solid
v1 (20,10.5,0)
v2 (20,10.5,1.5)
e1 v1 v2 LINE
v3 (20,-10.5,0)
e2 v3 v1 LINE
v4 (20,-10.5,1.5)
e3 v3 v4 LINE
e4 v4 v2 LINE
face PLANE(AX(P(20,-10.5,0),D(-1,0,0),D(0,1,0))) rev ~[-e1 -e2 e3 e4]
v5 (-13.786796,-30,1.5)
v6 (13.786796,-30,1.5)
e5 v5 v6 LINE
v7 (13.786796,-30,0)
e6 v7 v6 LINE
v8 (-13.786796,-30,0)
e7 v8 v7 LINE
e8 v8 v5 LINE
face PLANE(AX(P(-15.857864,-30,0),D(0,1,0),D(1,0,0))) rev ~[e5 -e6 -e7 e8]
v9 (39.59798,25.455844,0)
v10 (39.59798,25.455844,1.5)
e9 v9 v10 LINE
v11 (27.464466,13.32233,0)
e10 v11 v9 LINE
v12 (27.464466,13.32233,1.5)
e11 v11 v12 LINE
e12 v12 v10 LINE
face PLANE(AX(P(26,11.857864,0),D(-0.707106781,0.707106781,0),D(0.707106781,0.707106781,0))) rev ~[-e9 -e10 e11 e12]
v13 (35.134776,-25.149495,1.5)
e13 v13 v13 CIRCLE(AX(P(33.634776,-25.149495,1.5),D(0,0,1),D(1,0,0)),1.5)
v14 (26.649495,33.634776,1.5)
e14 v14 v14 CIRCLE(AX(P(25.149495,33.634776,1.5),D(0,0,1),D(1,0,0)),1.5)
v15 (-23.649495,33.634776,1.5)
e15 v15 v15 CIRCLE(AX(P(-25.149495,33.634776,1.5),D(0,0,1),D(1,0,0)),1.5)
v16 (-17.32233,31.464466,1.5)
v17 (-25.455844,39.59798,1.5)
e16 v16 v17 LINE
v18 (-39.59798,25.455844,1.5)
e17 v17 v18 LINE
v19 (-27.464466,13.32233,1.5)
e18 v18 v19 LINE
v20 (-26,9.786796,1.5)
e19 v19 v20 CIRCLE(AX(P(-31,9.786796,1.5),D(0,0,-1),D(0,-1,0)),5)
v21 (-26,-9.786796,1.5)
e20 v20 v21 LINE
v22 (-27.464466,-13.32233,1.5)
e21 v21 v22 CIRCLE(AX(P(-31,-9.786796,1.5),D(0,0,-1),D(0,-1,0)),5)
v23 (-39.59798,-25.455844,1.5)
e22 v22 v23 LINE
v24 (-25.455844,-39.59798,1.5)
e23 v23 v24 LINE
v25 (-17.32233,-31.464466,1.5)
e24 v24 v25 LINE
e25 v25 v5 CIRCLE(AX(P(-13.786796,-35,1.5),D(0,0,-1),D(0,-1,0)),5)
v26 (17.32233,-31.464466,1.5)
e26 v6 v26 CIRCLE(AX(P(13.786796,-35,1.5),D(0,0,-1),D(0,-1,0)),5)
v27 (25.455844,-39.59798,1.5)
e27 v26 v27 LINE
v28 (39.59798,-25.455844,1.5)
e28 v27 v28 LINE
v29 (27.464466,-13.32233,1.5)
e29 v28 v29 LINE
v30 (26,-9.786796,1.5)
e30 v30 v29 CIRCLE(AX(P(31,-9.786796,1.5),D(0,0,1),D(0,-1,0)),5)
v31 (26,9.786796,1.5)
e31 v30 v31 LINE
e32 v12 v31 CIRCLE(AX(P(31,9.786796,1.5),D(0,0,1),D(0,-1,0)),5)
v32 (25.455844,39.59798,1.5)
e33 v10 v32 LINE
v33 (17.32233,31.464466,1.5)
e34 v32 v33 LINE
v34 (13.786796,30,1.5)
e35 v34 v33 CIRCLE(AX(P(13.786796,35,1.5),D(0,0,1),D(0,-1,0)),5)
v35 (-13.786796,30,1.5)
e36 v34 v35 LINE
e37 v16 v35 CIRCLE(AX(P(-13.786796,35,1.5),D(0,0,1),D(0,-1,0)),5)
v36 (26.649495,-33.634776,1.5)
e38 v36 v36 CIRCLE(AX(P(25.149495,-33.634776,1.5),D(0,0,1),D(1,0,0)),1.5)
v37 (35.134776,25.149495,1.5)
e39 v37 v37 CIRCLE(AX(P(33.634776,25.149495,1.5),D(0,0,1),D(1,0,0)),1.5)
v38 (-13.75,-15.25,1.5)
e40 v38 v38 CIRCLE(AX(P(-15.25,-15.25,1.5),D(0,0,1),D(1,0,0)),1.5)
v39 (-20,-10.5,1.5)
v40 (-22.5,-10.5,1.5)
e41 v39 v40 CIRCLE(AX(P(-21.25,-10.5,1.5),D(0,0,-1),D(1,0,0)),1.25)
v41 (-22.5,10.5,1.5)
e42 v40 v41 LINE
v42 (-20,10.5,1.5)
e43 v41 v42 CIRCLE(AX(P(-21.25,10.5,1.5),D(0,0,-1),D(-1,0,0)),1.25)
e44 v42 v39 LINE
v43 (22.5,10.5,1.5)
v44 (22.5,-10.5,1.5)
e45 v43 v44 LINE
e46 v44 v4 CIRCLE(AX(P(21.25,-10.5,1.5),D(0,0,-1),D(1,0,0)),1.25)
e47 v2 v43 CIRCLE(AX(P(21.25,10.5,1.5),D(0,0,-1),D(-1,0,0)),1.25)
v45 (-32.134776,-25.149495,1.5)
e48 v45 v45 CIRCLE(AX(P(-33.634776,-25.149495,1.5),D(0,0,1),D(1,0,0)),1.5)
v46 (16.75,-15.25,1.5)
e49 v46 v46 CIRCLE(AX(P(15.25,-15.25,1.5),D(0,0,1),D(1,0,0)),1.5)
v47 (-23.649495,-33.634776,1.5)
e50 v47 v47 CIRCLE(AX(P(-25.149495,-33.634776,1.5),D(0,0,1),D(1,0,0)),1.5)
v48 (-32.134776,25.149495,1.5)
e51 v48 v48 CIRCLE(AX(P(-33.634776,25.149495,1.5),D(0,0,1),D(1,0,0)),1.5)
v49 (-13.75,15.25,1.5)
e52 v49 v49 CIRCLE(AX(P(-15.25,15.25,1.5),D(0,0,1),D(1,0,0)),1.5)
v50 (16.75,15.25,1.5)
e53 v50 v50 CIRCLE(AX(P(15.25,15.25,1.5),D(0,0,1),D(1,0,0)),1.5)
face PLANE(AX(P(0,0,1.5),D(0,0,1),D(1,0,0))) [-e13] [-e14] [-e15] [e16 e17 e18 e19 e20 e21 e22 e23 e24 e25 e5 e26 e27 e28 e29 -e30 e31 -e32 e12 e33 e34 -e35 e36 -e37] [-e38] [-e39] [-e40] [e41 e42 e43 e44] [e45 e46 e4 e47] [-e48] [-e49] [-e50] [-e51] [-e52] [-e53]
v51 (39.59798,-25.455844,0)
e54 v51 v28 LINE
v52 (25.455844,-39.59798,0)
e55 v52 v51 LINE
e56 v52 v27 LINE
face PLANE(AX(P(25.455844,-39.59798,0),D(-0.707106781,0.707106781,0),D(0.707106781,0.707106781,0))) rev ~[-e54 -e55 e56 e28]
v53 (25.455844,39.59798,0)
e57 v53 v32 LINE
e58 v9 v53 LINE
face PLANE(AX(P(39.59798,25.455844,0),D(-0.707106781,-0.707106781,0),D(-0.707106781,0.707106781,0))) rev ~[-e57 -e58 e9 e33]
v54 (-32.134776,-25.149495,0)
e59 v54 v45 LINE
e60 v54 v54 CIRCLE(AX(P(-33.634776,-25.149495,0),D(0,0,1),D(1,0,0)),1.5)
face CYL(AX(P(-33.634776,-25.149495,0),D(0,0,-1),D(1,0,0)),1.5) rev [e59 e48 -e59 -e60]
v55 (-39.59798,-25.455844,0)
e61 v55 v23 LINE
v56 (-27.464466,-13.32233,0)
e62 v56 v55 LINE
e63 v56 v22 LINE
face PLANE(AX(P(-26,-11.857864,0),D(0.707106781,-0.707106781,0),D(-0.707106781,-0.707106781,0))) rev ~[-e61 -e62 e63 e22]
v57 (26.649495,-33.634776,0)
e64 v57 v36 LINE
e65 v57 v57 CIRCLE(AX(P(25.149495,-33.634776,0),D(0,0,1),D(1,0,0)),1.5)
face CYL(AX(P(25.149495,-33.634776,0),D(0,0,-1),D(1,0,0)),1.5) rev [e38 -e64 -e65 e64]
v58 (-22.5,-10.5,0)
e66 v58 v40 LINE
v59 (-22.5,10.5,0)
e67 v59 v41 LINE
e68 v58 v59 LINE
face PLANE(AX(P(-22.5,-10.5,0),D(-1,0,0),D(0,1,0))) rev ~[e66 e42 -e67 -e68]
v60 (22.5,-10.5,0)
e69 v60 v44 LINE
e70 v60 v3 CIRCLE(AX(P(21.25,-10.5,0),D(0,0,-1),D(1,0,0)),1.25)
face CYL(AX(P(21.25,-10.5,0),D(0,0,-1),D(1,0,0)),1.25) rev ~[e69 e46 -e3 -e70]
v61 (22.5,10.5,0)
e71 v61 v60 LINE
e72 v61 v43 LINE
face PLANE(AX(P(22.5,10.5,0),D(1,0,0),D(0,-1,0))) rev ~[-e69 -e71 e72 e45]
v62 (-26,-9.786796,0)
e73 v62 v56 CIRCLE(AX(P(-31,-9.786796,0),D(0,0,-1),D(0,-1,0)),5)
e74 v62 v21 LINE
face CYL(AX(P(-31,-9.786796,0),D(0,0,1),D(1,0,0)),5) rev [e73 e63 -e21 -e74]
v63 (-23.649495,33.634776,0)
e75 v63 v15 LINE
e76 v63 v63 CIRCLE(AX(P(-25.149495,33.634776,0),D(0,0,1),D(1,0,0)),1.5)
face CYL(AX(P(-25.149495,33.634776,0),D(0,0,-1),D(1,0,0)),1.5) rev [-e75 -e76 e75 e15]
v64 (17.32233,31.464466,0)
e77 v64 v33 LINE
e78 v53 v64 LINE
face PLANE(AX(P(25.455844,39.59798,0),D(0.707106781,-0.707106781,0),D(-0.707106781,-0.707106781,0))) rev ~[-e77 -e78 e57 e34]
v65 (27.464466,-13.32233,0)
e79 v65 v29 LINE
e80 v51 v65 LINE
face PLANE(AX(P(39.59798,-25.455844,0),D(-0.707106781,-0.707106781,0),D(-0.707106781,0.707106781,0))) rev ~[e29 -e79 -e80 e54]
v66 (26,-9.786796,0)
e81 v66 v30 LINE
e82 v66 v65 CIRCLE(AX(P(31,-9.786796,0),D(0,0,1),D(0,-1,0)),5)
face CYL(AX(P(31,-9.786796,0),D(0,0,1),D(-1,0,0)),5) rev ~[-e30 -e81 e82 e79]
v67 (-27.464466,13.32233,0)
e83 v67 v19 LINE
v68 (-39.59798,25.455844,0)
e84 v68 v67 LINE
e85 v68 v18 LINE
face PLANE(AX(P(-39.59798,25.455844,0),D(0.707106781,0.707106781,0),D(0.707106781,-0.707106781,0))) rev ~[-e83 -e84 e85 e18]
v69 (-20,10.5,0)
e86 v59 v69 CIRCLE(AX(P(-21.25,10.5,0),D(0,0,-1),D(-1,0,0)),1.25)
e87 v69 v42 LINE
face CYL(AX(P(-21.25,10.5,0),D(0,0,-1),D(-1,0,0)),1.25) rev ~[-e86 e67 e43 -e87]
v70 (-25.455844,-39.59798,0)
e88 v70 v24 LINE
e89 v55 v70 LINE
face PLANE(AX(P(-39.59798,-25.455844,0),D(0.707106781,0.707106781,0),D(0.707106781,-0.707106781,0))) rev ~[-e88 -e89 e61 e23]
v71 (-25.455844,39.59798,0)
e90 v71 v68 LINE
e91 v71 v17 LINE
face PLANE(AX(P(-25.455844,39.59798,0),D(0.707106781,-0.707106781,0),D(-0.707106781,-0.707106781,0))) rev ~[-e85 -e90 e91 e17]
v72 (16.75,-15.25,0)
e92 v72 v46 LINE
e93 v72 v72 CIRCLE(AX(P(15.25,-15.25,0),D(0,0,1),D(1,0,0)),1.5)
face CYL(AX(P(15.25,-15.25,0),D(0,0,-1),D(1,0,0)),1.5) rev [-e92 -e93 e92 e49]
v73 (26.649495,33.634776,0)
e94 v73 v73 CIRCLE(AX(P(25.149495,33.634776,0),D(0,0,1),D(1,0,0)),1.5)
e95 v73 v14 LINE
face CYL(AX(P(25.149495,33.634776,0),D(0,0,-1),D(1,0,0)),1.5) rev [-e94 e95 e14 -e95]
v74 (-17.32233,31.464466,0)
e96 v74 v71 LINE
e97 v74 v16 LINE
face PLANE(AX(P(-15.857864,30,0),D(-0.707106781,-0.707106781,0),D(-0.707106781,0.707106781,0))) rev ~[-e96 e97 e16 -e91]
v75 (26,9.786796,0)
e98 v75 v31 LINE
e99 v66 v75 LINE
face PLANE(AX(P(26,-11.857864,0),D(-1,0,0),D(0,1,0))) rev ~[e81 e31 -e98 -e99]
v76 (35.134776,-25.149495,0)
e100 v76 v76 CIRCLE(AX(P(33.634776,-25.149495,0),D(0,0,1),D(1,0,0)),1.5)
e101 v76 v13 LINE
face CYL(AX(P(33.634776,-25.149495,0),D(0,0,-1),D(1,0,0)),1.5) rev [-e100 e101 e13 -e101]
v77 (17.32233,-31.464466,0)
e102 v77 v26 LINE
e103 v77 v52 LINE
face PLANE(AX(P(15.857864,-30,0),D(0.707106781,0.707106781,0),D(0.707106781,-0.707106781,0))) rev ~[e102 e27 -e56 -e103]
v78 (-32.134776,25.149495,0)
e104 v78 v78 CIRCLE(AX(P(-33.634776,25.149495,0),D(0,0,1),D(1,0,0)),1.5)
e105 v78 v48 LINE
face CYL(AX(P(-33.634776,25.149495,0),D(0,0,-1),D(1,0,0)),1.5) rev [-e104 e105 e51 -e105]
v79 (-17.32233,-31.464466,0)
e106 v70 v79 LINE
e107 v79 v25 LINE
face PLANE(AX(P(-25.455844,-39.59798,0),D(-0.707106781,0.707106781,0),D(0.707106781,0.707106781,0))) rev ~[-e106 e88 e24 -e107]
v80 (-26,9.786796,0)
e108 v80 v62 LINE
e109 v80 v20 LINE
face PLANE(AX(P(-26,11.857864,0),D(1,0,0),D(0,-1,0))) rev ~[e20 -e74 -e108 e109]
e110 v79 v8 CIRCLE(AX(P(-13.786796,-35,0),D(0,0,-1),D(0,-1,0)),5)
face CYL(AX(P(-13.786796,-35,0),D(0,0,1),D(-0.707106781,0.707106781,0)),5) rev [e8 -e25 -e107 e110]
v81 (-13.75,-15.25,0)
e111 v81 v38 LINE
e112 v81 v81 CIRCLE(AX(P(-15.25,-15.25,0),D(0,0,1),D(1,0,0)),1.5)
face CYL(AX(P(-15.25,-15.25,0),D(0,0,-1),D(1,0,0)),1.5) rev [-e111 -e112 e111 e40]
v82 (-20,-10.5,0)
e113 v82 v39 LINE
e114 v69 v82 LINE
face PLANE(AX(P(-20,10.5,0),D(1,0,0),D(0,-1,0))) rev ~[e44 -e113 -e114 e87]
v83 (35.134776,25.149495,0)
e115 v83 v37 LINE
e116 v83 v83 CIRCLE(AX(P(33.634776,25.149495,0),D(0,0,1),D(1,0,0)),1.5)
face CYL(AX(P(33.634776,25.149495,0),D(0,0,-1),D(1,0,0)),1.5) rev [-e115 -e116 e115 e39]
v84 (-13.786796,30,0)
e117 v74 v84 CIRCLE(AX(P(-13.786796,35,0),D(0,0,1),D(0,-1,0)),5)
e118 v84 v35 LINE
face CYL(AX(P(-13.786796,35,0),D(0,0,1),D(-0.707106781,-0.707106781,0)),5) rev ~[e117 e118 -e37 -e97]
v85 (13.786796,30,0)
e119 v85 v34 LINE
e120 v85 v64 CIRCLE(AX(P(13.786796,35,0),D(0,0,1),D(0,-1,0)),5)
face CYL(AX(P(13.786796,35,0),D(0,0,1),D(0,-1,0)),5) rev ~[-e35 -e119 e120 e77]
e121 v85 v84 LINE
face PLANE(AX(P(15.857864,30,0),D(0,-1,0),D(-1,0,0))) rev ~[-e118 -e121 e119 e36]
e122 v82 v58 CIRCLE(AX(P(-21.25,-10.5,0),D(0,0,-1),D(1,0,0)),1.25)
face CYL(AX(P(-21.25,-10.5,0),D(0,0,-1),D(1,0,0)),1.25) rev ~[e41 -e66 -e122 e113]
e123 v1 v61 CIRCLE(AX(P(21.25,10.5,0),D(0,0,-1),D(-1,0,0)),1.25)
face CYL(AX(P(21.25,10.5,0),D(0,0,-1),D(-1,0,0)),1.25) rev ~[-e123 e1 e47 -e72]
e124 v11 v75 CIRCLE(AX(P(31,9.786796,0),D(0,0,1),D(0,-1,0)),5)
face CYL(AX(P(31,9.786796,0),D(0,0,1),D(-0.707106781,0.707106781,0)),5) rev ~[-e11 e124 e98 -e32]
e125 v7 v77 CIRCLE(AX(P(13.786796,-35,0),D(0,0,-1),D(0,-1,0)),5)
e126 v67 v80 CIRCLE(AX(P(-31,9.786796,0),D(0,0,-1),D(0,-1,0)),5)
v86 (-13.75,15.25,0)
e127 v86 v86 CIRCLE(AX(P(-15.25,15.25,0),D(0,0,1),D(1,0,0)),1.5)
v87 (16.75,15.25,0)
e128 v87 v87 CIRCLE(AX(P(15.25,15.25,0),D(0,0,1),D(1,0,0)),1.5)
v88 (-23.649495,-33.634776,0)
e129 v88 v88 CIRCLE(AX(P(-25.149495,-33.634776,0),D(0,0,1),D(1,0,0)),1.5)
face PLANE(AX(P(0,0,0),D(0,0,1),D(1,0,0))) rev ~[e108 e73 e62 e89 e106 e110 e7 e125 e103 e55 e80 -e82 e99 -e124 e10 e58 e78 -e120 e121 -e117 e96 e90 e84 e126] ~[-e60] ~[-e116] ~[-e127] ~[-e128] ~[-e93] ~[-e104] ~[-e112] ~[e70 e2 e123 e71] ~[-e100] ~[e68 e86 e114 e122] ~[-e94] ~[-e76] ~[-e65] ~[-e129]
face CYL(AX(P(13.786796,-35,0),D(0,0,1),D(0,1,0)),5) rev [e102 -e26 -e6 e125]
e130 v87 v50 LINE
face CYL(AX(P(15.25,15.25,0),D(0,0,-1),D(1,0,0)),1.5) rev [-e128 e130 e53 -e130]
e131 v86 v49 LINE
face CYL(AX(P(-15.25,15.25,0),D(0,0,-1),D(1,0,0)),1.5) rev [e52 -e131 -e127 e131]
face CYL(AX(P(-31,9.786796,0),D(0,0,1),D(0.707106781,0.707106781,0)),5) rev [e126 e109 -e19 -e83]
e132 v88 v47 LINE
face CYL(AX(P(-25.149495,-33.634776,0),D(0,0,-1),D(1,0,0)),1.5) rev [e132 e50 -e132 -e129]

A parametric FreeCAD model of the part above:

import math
import FreeCAD as App
import Part
import Sketcher

V = App.Vector


def edges_at(feature, points):
    """Names of the edges that pass closest to the given points."""
    edges = feature.Shape.Edges
    near = lambda p: min(range(len(edges)), key=lambda i: edges[i].distToShape(Part.Vertex(*p))[0])
    return sorted({f"Edge{near(p) + 1}" for p in points})


def add_polygon(sketch, points):
    """Adds a closed chain of lines whose ends are joined by coincident constraints."""
    first, n = sketch.GeometryCount, len(points)
    for a, b in zip(points, points[1:] + points[:1]):
        sketch.addGeometry(Part.LineSegment(App.Vector(*a, 0), App.Vector(*b, 0)), False)
    for i in range(n):
        sketch.addConstraint(Sketcher.Constraint("Coincident", first + i, 2, first + (i + 1) % n, 1))

doc = App.newDocument("Part")
body = doc.addObject("PartDesign::Body", "Body")

# Sketch on XY plane
sketch1 = body.newObject("Sketcher::SketchObject", "Sketch")
sketch1.AttachmentSupport = (doc.getObject("XY_Plane"), [""])
sketch1.MapMode = "FlatFace"
add_polygon(sketch1, [(-25.5, 39.6), (-39.6, 25.5), (-26, 11.9), (-26, -11.9), (-39.6, -25.5), (-25.5, -39.6), (-15.9, -30), (15.9, -30), (25.5, -39.6), (39.6, -25.5), (26, -11.9), (26, 11.9), (39.6, 25.5), (25.5, 39.6), (15.9, 30), (-15.9, 30)])  # lines 0-15
sketch1.addGeometry(Part.Circle(V(-25.1, -33.6, 0), V(0, 0, 1), 1.5), False)  # 16
sketch1.addGeometry(Part.Circle(V(-33.6, -25.1, 0), V(0, 0, 1), 1.5), False)  # 17
sketch1.addGeometry(Part.Circle(V(-15.2, -15.2, 0), V(0, 0, 1), 1.5), False)  # 18
sketch1.addGeometry(Part.Circle(V(25.1, -33.6, 0), V(0, 0, 1), 1.5), False)  # 19
sketch1.addGeometry(Part.Circle(V(33.6, -25.1, 0), V(0, 0, 1), 1.5), False)  # 20
sketch1.addGeometry(Part.Circle(V(15.2, -15.2, 0), V(0, 0, 1), 1.5), False)  # 21
sketch1.addGeometry(Part.LineSegment(V(-22.5, -10.5, 0), V(-22.5, 10.5, 0)), False)  # 22
sketch1.addGeometry(Part.ArcOfCircle(Part.Circle(V(-21.2, 10.5, 0), V(0, 0, 1), 1.2), math.radians(0), math.radians(180)), False)  # 23
sketch1.addGeometry(Part.LineSegment(V(-20, 10.5, 0), V(-20, -10.5, 0)), False)  # 24
sketch1.addGeometry(Part.ArcOfCircle(Part.Circle(V(-21.2, -10.5, 0), V(0, 0, 1), 1.2), math.radians(180), math.radians(360)), False)  # 25
sketch1.addGeometry(Part.Circle(V(-15.2, 15.2, 0), V(0, 0, 1), 1.5), False)  # 26
sketch1.addGeometry(Part.Circle(V(-33.6, 25.1, 0), V(0, 0, 1), 1.5), False)  # 27
sketch1.addGeometry(Part.Circle(V(-25.1, 33.6, 0), V(0, 0, 1), 1.5), False)  # 28
sketch1.addGeometry(Part.Circle(V(15.2, 15.2, 0), V(0, 0, 1), 1.5), False)  # 29
sketch1.addGeometry(Part.ArcOfCircle(Part.Circle(V(21.2, -10.5, 0), V(0, 0, 1), 1.2), math.radians(180), math.radians(360)), False)  # 30
sketch1.addGeometry(Part.LineSegment(V(20, -10.5, 0), V(20, 10.5, 0)), False)  # 31
sketch1.addGeometry(Part.ArcOfCircle(Part.Circle(V(21.2, 10.5, 0), V(0, 0, 1), 1.2), math.radians(0), math.radians(180)), False)  # 32
sketch1.addGeometry(Part.LineSegment(V(22.5, 10.5, 0), V(22.5, -10.5, 0)), False)  # 33
sketch1.addGeometry(Part.Circle(V(33.6, 25.1, 0), V(0, 0, 1), 1.5), False)  # 34
sketch1.addGeometry(Part.Circle(V(25.1, 33.6, 0), V(0, 0, 1), 1.5), False)  # 35
sketch1.addConstraint([
    Sketcher.Constraint("Tangent", 22, 2, 23, 2),
    Sketcher.Constraint("Tangent", 23, 1, 24, 1),
    Sketcher.Constraint("Tangent", 24, 2, 25, 2),
    Sketcher.Constraint("Tangent", 25, 1, 22, 1),
    Sketcher.Constraint("Tangent", 30, 1, 31, 1),
    Sketcher.Constraint("Tangent", 31, 2, 32, 2),
    Sketcher.Constraint("Tangent", 32, 1, 33, 1),
    Sketcher.Constraint("Tangent", 33, 2, 30, 2),
    Sketcher.Constraint("Vertical", 2),
    Sketcher.Constraint("Horizontal", 6),
    Sketcher.Constraint("Vertical", 10),
    Sketcher.Constraint("Horizontal", 14),
    Sketcher.Constraint("Vertical", 22),
    Sketcher.Constraint("Vertical", 24),
    Sketcher.Constraint("Vertical", 31),
    Sketcher.Constraint("Vertical", 33),
    Sketcher.Constraint("Equal", 16, 17),
    Sketcher.Constraint("Equal", 17, 18),
    Sketcher.Constraint("Equal", 18, 19),
    Sketcher.Constraint("Equal", 19, 20),
    Sketcher.Constraint("Equal", 20, 21),
    Sketcher.Constraint("Equal", 21, 26),
    Sketcher.Constraint("Equal", 26, 27),
    Sketcher.Constraint("Equal", 27, 28),
    Sketcher.Constraint("Equal", 28, 29),
    Sketcher.Constraint("Equal", 25, 30),
    Sketcher.Constraint("Equal", 29, 34),
    Sketcher.Constraint("Equal", 34, 35),
    Sketcher.Constraint("Symmetric", 21, 3, 26, 3, -1, 1),
    Sketcher.Constraint("Symmetric", 20, 3, 27, 3, -1, 1),
    Sketcher.Constraint("Symmetric", 19, 3, 28, 3, -1, 1),
    Sketcher.Constraint("Symmetric", 18, 3, 29, 3, -1, 1),
    Sketcher.Constraint("Symmetric", 23, 3, 30, 3, -1, 1),
    Sketcher.Constraint("Symmetric", 17, 3, 34, 3, -1, 1),
    Sketcher.Constraint("Symmetric", 16, 3, 35, 3, -1, 1),
    Sketcher.Constraint("Symmetric", 0, 2, 8, 2, -1, 1),
    Sketcher.Constraint("Symmetric", 1, 2, 9, 2, -1, 1),
    Sketcher.Constraint("Symmetric", 3, 2, 11, 2, -1, 1),
    Sketcher.Constraint("Symmetric", 4, 2, 12, 2, -1, 1),
    Sketcher.Constraint("Symmetric", 5, 2, 13, 2, -1, 1),
    Sketcher.Constraint("Symmetric", 7, 2, 15, 2, -1, 1),
    Sketcher.Constraint("Symmetric", 16, 3, 19, 3, -2),
    Sketcher.Constraint("Symmetric", 17, 3, 20, 3, -2),
    Sketcher.Constraint("Symmetric", 18, 3, 21, 3, -2),
    Sketcher.Constraint("Symmetric", 4, 2, 7, 2, -2),
    Sketcher.Constraint("Symmetric", 3, 2, 8, 2, -2),
    Sketcher.Constraint("Perpendicular", 0, 1),
    Sketcher.Constraint("Perpendicular", 1, 3),
    Sketcher.Constraint("Perpendicular", 3, 4),
    Sketcher.Constraint("Perpendicular", 4, 5),
    Sketcher.Constraint("Perpendicular", 5, 7),
    Sketcher.Constraint("Perpendicular", 9, 11),
    Sketcher.Constraint("Perpendicular", 13, 15),
    Sketcher.Constraint("Horizontal", 25, 3, 30, 3),
    Sketcher.Constraint("Horizontal", 23, 3, 32, 3),
    Sketcher.Constraint("Diameter", 16, 3.0),
    Sketcher.Constraint("DistanceY", 22, 1, 22, 2, 21.0),
    Sketcher.Constraint("Radius", 23, 1.25),
    Sketcher.Constraint("Distance", 0, 20.000001),
    Sketcher.Constraint("DistanceX", 1, 2, -1, 1, 26.0),
    Sketcher.Constraint("DistanceY", 5, 2, -1, 1, 30.0),
    Sketcher.Constraint("DistanceX", 23, 1, -1, 1, 20.0),
    Sketcher.Constraint("DistanceX", 23, 3, 18, 3, 6.0),
    Sketcher.Constraint("DistanceY", 18, 3, 26, 3, 30.5),
    Sketcher.Constraint("DistanceX", 6, 1, 6, 2, 31.715728),
    Sketcher.Constraint("DistanceX", 0, 2, -1, 1, 39.59798),
    Sketcher.Constraint("DistanceX", 17, 3, 16, 3, 8.485281),
    Sketcher.Constraint("DistanceY", 16, 3, 17, 3, 8.485281),
    Sketcher.Constraint("DistanceX", 16, 3, 19, 3, 50.29899),
    Sketcher.Constraint("DistanceY", 17, 3, 27, 3, 50.29899),
])
pad1 = body.newObject("PartDesign::Pad", "Pad")
pad1.Profile = sketch1
pad1.Length = 1.5
doc.recompute()

fillet = body.newObject("PartDesign::Fillet", "Fillet")
fillet.Base = (pad1, edges_at(pad1, [
    (-15.858, 30, 0.75),
    (15.858, 30, 0.75),
    (26, 11.858, 0.75),
    (26, -11.858, 0.75),
    (-26, -11.858, 0.75),
    (-26, 11.858, 0.75),
    (-15.858, -30, 0.75),
    (15.858, -30, 0.75),
]))
fillet.Radius = 5

doc.recompute()
